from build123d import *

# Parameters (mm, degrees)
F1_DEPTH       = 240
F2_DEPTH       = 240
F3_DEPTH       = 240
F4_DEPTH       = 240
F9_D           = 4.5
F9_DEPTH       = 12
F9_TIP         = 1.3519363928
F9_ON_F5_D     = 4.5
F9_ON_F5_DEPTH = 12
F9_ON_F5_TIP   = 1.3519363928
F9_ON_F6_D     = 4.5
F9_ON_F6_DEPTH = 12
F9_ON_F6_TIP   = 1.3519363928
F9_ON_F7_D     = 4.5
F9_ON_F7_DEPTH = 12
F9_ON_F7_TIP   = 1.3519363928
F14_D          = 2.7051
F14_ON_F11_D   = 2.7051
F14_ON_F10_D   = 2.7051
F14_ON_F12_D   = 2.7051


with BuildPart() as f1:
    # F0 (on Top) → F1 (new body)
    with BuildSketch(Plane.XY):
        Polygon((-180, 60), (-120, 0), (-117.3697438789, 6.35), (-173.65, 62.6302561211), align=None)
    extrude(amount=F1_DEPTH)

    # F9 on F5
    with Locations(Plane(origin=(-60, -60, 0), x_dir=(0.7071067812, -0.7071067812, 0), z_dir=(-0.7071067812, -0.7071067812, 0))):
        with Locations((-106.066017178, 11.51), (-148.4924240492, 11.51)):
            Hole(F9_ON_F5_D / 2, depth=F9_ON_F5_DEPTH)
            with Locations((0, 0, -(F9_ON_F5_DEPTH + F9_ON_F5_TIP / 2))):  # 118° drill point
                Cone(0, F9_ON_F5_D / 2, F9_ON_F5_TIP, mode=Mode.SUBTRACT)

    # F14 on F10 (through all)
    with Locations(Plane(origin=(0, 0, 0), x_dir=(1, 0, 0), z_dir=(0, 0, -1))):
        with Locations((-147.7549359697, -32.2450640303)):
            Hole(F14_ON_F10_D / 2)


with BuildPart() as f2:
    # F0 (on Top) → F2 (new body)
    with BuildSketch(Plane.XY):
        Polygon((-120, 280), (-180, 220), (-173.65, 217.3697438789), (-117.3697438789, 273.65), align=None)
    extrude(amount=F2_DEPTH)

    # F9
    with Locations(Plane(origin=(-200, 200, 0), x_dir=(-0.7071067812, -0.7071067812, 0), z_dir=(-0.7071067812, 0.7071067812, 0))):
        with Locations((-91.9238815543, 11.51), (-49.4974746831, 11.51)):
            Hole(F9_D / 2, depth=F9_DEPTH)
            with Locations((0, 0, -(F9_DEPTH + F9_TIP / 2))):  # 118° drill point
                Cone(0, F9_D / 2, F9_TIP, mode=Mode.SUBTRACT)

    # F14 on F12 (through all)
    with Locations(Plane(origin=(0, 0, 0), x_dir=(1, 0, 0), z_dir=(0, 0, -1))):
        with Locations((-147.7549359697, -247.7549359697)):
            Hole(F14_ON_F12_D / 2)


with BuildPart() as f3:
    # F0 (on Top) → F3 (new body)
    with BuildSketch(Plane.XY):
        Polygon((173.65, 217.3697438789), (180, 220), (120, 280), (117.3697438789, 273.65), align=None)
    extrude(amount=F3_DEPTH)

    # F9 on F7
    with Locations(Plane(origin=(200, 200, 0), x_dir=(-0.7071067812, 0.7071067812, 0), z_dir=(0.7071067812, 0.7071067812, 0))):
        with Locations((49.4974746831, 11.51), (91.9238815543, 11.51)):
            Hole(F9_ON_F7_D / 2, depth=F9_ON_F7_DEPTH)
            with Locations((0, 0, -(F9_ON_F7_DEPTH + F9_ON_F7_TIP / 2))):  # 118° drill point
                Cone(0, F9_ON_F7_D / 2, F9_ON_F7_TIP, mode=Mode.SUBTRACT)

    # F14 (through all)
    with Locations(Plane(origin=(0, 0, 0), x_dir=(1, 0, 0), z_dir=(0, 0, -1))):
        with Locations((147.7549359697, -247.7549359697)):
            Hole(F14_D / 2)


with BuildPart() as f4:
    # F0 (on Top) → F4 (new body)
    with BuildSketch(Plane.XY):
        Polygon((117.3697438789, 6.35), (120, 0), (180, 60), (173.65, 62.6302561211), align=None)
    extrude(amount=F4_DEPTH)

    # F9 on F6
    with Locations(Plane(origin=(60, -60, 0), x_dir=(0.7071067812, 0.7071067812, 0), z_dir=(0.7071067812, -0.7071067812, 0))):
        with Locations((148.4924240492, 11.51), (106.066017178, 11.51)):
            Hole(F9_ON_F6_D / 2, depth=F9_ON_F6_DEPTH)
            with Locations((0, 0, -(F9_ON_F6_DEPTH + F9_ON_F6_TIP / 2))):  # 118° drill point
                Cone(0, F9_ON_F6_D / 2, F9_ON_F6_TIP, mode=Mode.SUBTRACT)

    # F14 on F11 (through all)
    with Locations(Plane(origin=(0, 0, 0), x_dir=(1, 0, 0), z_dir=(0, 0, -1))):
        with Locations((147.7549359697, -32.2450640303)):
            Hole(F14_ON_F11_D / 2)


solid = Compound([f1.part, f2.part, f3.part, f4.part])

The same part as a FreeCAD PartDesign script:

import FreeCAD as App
import Part
import Sketcher

V = App.Vector
Q = App.Units.Quantity


def add_polygon(sketch, points):
    """Adds a closed chain of lines whose ends are joined by coincident constraints."""
    first, n = sketch.GeometryCount, len(points)
    for a, b in zip(points, points[1:] + points[:1]):
        sketch.addGeometry(Part.LineSegment(App.Vector(*a, 0), App.Vector(*b, 0)), False)
    for i in range(n):
        sketch.addConstraint(Sketcher.Constraint("Coincident", first + i, 2, first + (i + 1) % n, 1))

doc = App.newDocument("Part")
body = doc.addObject("PartDesign::Body", "Body")

# Sketch on XY plane
sketch1 = doc.addObject("Sketcher::SketchObject", "Sketch")
body.addObject(sketch1)
sketch1.AttachmentSupport = (doc.XY_Plane, [""])
sketch1.MapMode = "FlatFace"
add_polygon(sketch1, [(-180, 60), (-120, 0), (-117, 6), (-174, 63)])  # lines 0-3
sketch1.addConstraint([
    Sketcher.Constraint("PointOnObject", 0, 2, -1),
    Sketcher.Constraint("Parallel", 0, 2),
    Sketcher.Constraint("Equal", 1, 3),
    Sketcher.Constraint("Angle", 0, Q("-45 deg")),
    Sketcher.Constraint("DistanceX", 0, 2, -1, 1, Q("120 mm")),
    Sketcher.Constraint("DistanceX", 3, 2, -1, 1, Q("180 mm")),
    Sketcher.Constraint("Angle", 1, Q("67.5 deg")),
    Sketcher.Constraint("DistanceY", -1, 1, 1, 2, Q("6.35 mm")),
])
pad1 = doc.addObject("PartDesign::Pad", "Pad")
body.addObject(pad1)
pad1.Profile = sketch1
pad1.Length = 240

# Sketch on an angled plane
sketch2 = doc.addObject("Sketcher::SketchObject", "Sketch001")
body.addObject(sketch2)
sketch2.Placement = App.Placement(V(-60, -60, 0), App.Rotation(V(0.707106781, -0.707106781, 0), V(0, 0, 0.999999999), V(-0.707106781, -0.707106781, 0), "ZXY"))
sketch2.addGeometry([
    Part.Circle(V(-106.1, 11.5, 0), V(0, 0, 1), 2.2),
    Part.Circle(V(-148.5, 11.5, 0), V(0, 0, 1), 2.2),
], False)
sketch2.addConstraint([
    Sketcher.Constraint("Equal", 0, 1),
    Sketcher.Constraint("Horizontal", 0, 3, 1, 3),
    Sketcher.Constraint("Diameter", 0, Q("4.5 mm")),
    Sketcher.Constraint("DistanceY", -1, 1, 0, 3, Q("11.51 mm")),
    Sketcher.Constraint("DistanceX", 0, 3, -1, 1, Q("106.066017 mm")),
    Sketcher.Constraint("DistanceX", 1, 3, -1, 1, Q("148.492424 mm")),
])
doc.recompute()
hole = doc.addObject("PartDesign::Hole", "Hole")
body.addObject(hole)
hole.Profile = sketch2
hole.ThreadType = "None"
hole.Diameter = 4.5
hole.DepthType = "Dimension"
hole.Depth = 12
hole.DrillPoint = "Angled"
hole.DrillPointAngle = 118

# Sketch on XY plane
sketch3 = doc.addObject("Sketcher::SketchObject", "Sketch002")
body.addObject(sketch3)
sketch3.AttachmentSupport = (doc.XY_Plane, [""])
sketch3.MapMode = "FlatFace"
sketch3.addGeometry(Part.Circle(V(-147.8, 32.2, 0), V(0, 0, 1), 1.4), False)
sketch3.addConstraint([
    Sketcher.Constraint("Diameter", 0, Q("2.7051 mm")),
    Sketcher.Constraint("DistanceX", 0, 3, -1, 1, Q("147.754936 mm")),
    Sketcher.Constraint("DistanceY", -1, 1, 0, 3, Q("32.245064 mm")),
])
doc.recompute()
hole2 = doc.addObject("PartDesign::Hole", "Hole001")
body.addObject(hole2)
hole2.Profile = sketch3
hole2.ThreadType = "None"
hole2.Diameter = 2.7051
hole2.DepthType = "ThroughAll"
hole2.Reversed = True
body2 = doc.addObject("PartDesign::Body", "Body001")

# Sketch on XY plane
sketch4 = doc.addObject("Sketcher::SketchObject", "Sketch003")
body2.addObject(sketch4)
sketch4.AttachmentSupport = (doc.getObject("XY_Plane001"), [""])
sketch4.MapMode = "FlatFace"
add_polygon(sketch4, [(-120, 280), (-180, 220), (-174, 217), (-117, 274)])  # lines 0-3
sketch4.addConstraint([
    Sketcher.Constraint("Parallel", 0, 2),
    Sketcher.Constraint("Equal", 1, 3),
    Sketcher.Constraint("Angle", 0, Q("-135 deg")),
    Sketcher.Constraint("DistanceX", 0, 2, -1, 1, Q("180 mm")),
    Sketcher.Constraint("DistanceY", -1, 1, 0, 2, Q("220 mm")),
    Sketcher.Constraint("DistanceX", 3, 2, -1, 1, Q("120 mm")),
    Sketcher.Constraint("Angle", 1, Q("-22.5 deg")),
    Sketcher.Constraint("DistanceX", 1, 2, -1, 1, Q("173.65 mm")),
])
pad2 = doc.addObject("PartDesign::Pad", "Pad001")
body2.addObject(pad2)
pad2.Profile = sketch4
pad2.Length = 240

# Sketch on an angled plane
sketch5 = doc.addObject("Sketcher::SketchObject", "Sketch004")
body2.addObject(sketch5)
sketch5.Placement = App.Placement(V(-200, 200, 0), App.Rotation(V(-0.707106781, -0.707106781, 0), V(0, 0, 0.999999999), V(-0.707106781, 0.707106781, 0), "ZXY"))
sketch5.addGeometry([
    Part.Circle(V(-91.9, 11.5, 0), V(0, 0, 1), 2.2),
    Part.Circle(V(-49.5, 11.5, 0), V(0, 0, 1), 2.2),
], False)
sketch5.addConstraint([
    Sketcher.Constraint("Equal", 0, 1),
    Sketcher.Constraint("Horizontal", 0, 3, 1, 3),
    Sketcher.Constraint("Diameter", 0, Q("4.5 mm")),
    Sketcher.Constraint("DistanceY", -1, 1, 0, 3, Q("11.51 mm")),
    Sketcher.Constraint("DistanceX", 0, 3, -1, 1, Q("91.923882 mm")),
    Sketcher.Constraint("DistanceX", 1, 3, -1, 1, Q("49.497475 mm")),
])
doc.recompute()
hole3 = doc.addObject("PartDesign::Hole", "Hole002")
body2.addObject(hole3)
hole3.Profile = sketch5
hole3.ThreadType = "None"
hole3.Diameter = 4.5
hole3.DepthType = "Dimension"
hole3.Depth = 12
hole3.DrillPoint = "Angled"
hole3.DrillPointAngle = 118

# Sketch on XY plane
sketch6 = doc.addObject("Sketcher::SketchObject", "Sketch005")
body2.addObject(sketch6)
sketch6.AttachmentSupport = (doc.getObject("XY_Plane001"), [""])
sketch6.MapMode = "FlatFace"
sketch6.addGeometry(Part.Circle(V(-147.8, 247.8, 0), V(0, 0, 1), 1.4), False)
sketch6.addConstraint([
    Sketcher.Constraint("Diameter", 0, Q("2.7051 mm")),
    Sketcher.Constraint("DistanceX", 0, 3, -1, 1, Q("147.754936 mm")),
    Sketcher.Constraint("DistanceY", -1, 1, 0, 3, Q("247.754936 mm")),
])
doc.recompute()
hole4 = doc.addObject("PartDesign::Hole", "Hole003")
body2.addObject(hole4)
hole4.Profile = sketch6
hole4.ThreadType = "None"
hole4.Diameter = 2.7051
hole4.DepthType = "ThroughAll"
hole4.Reversed = True
body3 = doc.addObject("PartDesign::Body", "Body002")

# Sketch on XY plane
sketch7 = doc.addObject("Sketcher::SketchObject", "Sketch006")
body3.addObject(sketch7)
sketch7.AttachmentSupport = (doc.getObject("XY_Plane002"), [""])
sketch7.MapMode = "FlatFace"
add_polygon(sketch7, [(174, 217), (180, 220), (120, 280), (117, 274)])  # lines 0-3
sketch7.addConstraint([
    Sketcher.Constraint("Parallel", 1, 3),
    Sketcher.Constraint("Equal", 0, 2),
    Sketcher.Constraint("Angle", 1, Q("135 deg")),
    Sketcher.Constraint("DistanceX", -1, 1, 0, 2, Q("180 mm")),
    Sketcher.Constraint("DistanceY", -1, 1, 0, 2, Q("220 mm")),
    Sketcher.Constraint("DistanceX", -1, 1, 1, 2, Q("120 mm")),
    Sketcher.Constraint("Angle", 0, Q("22.5 deg")),
    Sketcher.Constraint("DistanceY", -1, 1, 2, 2, Q("273.65 mm")),
])
pad3 = doc.addObject("PartDesign::Pad", "Pad002")
body3.addObject(pad3)
pad3.Profile = sketch7
pad3.Length = 240

# Sketch on an angled plane
sketch8 = doc.addObject("Sketcher::SketchObject", "Sketch007")
body3.addObject(sketch8)
sketch8.Placement = App.Placement(V(200, 200, 0), App.Rotation(V(-0.707106781, 0.707106781, 0), V(0, 0, 0.999999999), V(0.707106781, 0.707106781, 0), "ZXY"))
sketch8.addGeometry([
    Part.Circle(V(49.5, 11.5, 0), V(0, 0, 1), 2.2),
    Part.Circle(V(91.9, 11.5, 0), V(0, 0, 1), 2.2),
], False)
sketch8.addConstraint([
    Sketcher.Constraint("Equal", 0, 1),
    Sketcher.Constraint("Horizontal", 0, 3, 1, 3),
    Sketcher.Constraint("Diameter", 0, Q("4.5 mm")),
    Sketcher.Constraint("DistanceY", -1, 1, 0, 3, Q("11.51 mm")),
    Sketcher.Constraint("DistanceX", -1, 1, 1, 3, Q("91.923882 mm")),
    Sketcher.Constraint("DistanceX", -1, 1, 0, 3, Q("49.497475 mm")),
])
doc.recompute()
hole5 = doc.addObject("PartDesign::Hole", "Hole004")
body3.addObject(hole5)
hole5.Profile = sketch8
hole5.ThreadType = "None"
hole5.Diameter = 4.5
hole5.DepthType = "Dimension"
hole5.Depth = 12
hole5.DrillPoint = "Angled"
hole5.DrillPointAngle = 118

# Sketch on XY plane
sketch9 = doc.addObject("Sketcher::SketchObject", "Sketch008")
body3.addObject(sketch9)
sketch9.AttachmentSupport = (doc.getObject("XY_Plane002"), [""])
sketch9.MapMode = "FlatFace"
sketch9.addGeometry(Part.Circle(V(147.8, 247.8, 0), V(0, 0, 1), 1.4), False)
sketch9.addConstraint([
    Sketcher.Constraint("Diameter", 0, Q("2.7051 mm")),
    Sketcher.Constraint("DistanceX", -1, 1, 0, 3, Q("147.754936 mm")),
    Sketcher.Constraint("DistanceY", -1, 1, 0, 3, Q("247.754936 mm")),
])
doc.recompute()
hole6 = doc.addObject("PartDesign::Hole", "Hole005")
body3.addObject(hole6)
hole6.Profile = sketch9
hole6.ThreadType = "None"
hole6.Diameter = 2.7051
hole6.DepthType = "ThroughAll"
hole6.Reversed = True
body4 = doc.addObject("PartDesign::Body", "Body003")

# Sketch on XY plane
sketch10 = doc.addObject("Sketcher::SketchObject", "Sketch009")
body4.addObject(sketch10)
sketch10.AttachmentSupport = (doc.getObject("XY_Plane003"), [""])
sketch10.MapMode = "FlatFace"
add_polygon(sketch10, [(117, 6), (120, 0), (180, 60), (174, 63)])  # lines 0-3
sketch10.addConstraint([
    Sketcher.Constraint("PointOnObject", 0, 2, -1),
    Sketcher.Constraint("Parallel", 1, 3),
    Sketcher.Constraint("Equal", 0, 2),
    Sketcher.Constraint("Angle", 1, Q("45 deg")),
    Sketcher.Constraint("DistanceX", -1, 1, 0, 2, Q("120 mm")),
    Sketcher.Constraint("DistanceX", -1, 1, 1, 2, Q("180 mm")),
    Sketcher.Constraint("Angle", 0, Q("-67.5 deg")),
    Sketcher.Constraint("DistanceX", -1, 1, 2, 2, Q("173.65 mm")),
])
pad4 = doc.addObject("PartDesign::Pad", "Pad003")
body4.addObject(pad4)
pad4.Profile = sketch10
pad4.Length = 240

# Sketch on an angled plane
sketch11 = doc.addObject("Sketcher::SketchObject", "Sketch010")
body4.addObject(sketch11)
sketch11.Placement = App.Placement(V(60, -60, 0), App.Rotation(V(0.707106781, 0.707106781, 0), V(0, 0, 0.999999999), V(0.707106781, -0.707106781, 0), "ZXY"))
sketch11.addGeometry([
    Part.Circle(V(148.5, 11.5, 0), V(0, 0, 1), 2.2),
    Part.Circle(V(106.1, 11.5, 0), V(0, 0, 1), 2.2),
], False)
sketch11.addConstraint([
    Sketcher.Constraint("Equal", 0, 1),
    Sketcher.Constraint("Horizontal", 0, 3, 1, 3),
    Sketcher.Constraint("Diameter", 0, Q("4.5 mm")),
    Sketcher.Constraint("DistanceY", -1, 1, 0, 3, Q("11.51 mm")),
    Sketcher.Constraint("DistanceX", -1, 1, 0, 3, Q("148.492424 mm")),
    Sketcher.Constraint("DistanceX", -1, 1, 1, 3, Q("106.066017 mm")),
])
doc.recompute()
hole7 = doc.addObject("PartDesign::Hole", "Hole006")
body4.addObject(hole7)
hole7.Profile = sketch11
hole7.ThreadType = "None"
hole7.Diameter = 4.5
hole7.DepthType = "Dimension"
hole7.Depth = 12
hole7.DrillPoint = "Angled"
hole7.DrillPointAngle = 118

# Sketch on XY plane
sketch12 = doc.addObject("Sketcher::SketchObject", "Sketch011")
body4.addObject(sketch12)
sketch12.AttachmentSupport = (doc.getObject("XY_Plane003"), [""])
sketch12.MapMode = "FlatFace"
sketch12.addGeometry(Part.Circle(V(147.8, 32.2, 0), V(0, 0, 1), 1.4), False)
sketch12.addConstraint([
    Sketcher.Constraint("Diameter", 0, Q("2.7051 mm")),
    Sketcher.Constraint("DistanceX", -1, 1, 0, 3, Q("147.754936 mm")),
    Sketcher.Constraint("DistanceY", -1, 1, 0, 3, Q("32.245064 mm")),
])
doc.recompute()
hole8 = doc.addObject("PartDesign::Hole", "Hole007")
body4.addObject(hole8)
hole8.Profile = sketch12
hole8.ThreadType = "None"
hole8.Diameter = 2.7051
hole8.DepthType = "ThroughAll"
hole8.Reversed = True

doc.recompute()
